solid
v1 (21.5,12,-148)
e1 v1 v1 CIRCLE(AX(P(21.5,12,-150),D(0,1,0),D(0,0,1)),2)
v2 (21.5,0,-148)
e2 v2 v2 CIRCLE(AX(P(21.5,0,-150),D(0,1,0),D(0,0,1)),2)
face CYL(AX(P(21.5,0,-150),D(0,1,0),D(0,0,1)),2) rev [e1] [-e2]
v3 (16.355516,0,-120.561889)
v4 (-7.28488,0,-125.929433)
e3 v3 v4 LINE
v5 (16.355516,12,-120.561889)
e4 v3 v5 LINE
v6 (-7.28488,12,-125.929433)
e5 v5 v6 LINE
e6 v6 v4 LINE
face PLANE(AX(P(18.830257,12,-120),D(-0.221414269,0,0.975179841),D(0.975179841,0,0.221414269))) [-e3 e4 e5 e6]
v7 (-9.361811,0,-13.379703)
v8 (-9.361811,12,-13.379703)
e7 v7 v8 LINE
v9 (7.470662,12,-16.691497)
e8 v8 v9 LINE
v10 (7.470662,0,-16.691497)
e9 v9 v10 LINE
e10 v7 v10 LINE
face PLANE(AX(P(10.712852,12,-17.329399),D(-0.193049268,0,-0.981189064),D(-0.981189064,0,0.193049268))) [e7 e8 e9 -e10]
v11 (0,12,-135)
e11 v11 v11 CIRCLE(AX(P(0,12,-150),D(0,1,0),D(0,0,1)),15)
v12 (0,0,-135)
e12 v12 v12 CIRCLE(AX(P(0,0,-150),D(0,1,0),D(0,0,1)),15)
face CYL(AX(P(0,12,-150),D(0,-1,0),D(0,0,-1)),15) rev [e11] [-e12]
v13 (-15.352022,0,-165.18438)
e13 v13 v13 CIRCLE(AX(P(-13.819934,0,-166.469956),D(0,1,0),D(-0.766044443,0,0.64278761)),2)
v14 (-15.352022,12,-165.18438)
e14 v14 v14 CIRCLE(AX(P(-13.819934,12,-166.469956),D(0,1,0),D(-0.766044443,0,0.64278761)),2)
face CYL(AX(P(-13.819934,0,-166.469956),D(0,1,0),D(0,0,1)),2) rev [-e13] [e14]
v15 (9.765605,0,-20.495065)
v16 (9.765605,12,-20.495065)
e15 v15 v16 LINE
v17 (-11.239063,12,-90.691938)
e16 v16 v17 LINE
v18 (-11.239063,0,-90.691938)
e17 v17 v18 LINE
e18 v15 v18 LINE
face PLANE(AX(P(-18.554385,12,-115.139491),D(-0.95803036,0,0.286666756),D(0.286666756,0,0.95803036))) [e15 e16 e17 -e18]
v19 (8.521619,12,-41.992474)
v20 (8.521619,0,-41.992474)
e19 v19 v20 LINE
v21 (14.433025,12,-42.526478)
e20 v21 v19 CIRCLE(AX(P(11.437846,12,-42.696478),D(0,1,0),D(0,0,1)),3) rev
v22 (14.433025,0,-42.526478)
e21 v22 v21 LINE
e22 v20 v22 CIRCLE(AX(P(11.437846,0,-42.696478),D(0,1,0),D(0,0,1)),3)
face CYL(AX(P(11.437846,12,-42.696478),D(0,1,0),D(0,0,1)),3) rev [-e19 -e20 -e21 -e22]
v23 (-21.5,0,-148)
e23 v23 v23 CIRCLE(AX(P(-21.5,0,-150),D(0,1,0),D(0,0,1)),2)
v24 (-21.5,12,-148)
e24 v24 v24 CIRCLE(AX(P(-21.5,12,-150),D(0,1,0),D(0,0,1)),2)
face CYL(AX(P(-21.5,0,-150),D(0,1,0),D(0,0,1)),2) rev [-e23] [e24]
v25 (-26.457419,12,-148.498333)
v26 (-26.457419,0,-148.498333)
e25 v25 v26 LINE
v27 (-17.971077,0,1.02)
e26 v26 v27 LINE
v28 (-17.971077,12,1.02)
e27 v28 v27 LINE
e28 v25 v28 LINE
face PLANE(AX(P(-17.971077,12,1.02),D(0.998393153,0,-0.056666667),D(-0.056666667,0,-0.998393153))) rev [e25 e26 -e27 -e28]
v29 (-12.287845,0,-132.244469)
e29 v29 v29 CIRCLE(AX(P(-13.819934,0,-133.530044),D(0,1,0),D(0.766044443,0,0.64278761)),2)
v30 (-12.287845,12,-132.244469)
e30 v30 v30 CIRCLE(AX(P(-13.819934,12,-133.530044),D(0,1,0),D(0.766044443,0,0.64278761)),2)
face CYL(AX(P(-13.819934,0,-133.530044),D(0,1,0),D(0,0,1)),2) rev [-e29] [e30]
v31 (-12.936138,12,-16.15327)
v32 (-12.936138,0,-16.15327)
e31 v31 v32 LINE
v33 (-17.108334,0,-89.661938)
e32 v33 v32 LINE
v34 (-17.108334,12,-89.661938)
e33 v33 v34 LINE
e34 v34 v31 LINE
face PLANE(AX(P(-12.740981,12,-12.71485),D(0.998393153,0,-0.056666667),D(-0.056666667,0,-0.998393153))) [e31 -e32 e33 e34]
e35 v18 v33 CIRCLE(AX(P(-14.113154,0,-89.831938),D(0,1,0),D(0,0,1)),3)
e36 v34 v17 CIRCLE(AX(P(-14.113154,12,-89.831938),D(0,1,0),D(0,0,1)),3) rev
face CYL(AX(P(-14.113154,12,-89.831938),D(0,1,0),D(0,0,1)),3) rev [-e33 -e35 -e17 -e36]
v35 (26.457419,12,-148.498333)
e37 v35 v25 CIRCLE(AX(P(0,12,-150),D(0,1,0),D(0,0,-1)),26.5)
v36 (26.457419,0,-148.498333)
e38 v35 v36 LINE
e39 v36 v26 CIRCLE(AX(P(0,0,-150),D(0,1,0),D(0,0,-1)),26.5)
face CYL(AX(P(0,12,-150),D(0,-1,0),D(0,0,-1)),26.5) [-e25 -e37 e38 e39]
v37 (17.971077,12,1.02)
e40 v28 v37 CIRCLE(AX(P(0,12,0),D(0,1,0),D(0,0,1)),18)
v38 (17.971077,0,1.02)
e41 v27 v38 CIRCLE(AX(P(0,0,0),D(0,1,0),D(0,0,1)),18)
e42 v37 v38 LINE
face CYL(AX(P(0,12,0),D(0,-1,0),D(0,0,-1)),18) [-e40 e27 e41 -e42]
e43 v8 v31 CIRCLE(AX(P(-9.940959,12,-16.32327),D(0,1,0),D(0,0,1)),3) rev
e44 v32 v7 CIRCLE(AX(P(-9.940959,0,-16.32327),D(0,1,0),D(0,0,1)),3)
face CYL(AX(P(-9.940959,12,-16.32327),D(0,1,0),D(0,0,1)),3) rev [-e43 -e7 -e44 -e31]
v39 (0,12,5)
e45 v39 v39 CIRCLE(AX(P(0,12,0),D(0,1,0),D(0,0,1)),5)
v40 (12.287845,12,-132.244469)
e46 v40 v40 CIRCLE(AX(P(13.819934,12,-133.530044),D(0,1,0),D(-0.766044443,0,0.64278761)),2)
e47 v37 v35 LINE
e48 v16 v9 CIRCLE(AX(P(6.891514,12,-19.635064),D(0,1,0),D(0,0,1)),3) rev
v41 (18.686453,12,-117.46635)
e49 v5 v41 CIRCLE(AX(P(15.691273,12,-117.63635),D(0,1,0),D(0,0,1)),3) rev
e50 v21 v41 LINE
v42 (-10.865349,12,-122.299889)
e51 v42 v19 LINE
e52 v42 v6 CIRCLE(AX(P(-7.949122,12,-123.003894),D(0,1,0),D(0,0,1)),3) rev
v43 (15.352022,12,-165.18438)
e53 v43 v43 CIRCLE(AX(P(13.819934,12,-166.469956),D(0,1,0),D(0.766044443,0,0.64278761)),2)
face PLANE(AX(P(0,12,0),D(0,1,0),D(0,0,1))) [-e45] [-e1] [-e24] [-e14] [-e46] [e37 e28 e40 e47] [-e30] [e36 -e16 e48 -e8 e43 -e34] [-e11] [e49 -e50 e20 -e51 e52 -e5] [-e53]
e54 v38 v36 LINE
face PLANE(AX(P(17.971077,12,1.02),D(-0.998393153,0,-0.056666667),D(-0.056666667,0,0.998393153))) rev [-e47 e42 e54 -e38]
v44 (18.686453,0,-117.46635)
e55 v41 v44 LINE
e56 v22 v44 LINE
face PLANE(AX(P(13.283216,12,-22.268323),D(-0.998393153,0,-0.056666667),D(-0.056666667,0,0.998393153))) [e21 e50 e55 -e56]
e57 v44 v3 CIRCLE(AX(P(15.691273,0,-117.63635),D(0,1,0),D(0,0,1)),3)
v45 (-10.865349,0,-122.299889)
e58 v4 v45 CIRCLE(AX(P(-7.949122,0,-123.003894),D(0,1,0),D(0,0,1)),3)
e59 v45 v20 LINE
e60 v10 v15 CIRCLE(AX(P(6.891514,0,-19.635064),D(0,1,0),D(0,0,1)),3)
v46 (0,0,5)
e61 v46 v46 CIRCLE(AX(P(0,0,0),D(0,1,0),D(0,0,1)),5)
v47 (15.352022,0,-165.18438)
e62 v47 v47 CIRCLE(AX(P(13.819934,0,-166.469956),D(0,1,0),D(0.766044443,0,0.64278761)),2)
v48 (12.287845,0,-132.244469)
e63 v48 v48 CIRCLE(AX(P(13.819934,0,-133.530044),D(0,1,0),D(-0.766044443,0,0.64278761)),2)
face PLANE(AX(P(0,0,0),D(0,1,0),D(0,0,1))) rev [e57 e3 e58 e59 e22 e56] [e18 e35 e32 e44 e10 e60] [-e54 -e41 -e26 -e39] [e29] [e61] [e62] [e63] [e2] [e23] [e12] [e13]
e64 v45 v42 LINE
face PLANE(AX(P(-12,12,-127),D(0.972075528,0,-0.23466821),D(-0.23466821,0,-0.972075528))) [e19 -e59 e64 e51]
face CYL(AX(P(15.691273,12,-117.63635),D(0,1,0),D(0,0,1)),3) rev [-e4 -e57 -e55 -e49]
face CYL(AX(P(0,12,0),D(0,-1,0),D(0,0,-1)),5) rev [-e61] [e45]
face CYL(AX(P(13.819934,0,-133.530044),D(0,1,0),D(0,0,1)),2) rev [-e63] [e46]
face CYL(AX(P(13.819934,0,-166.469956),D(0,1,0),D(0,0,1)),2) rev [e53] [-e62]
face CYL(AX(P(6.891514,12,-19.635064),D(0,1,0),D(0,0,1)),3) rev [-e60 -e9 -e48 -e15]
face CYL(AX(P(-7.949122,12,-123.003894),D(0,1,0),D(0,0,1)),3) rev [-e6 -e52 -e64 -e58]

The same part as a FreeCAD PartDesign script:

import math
import FreeCAD as App
import Part
import Sketcher
Q = App.Units.Quantity


def edges_at(feature, points):
    """Names of the edges that pass closest to the given points."""
    edges = feature.Shape.Edges
    near = lambda p: min(range(len(edges)), key=lambda i: edges[i].distToShape(Part.Vertex(*p))[0])
    return sorted({f"Edge{near(p) + 1}" for p in points})

doc = App.newDocument("Part")
params = doc.addObject("Spreadsheet::Sheet", "Params")
for row, (alias, value) in enumerate([
    ("sketch1_diameter", "10 mm"),
    ("sketch1_diameter2", "30 mm"),
    ("sketch1_radius", "18 mm"),
    ("sketch1_radius2", "26.5 mm"),
    ("pad1_length", "12 mm"),
    ("fillet_radius", "3 mm"),
    ("sketch2_diameter", "4 mm"),
], start=1):
    params.set(f"A{row}", alias)
    params.set(f"B{row}", "=" + value)
    params.setAlias(f"B{row}", alias)

body = doc.addObject("PartDesign::Body", "Body")

# Sketch on XZ plane
sketch1 = body.newObject("Sketcher::SketchObject", "Sketch")
sketch1.AttachmentSupport = (doc.getObject("XZ_Plane"), [""])
sketch1.MapMode = "FlatFace"
sketch1.addGeometry([
    Part.LineSegment(App.Vector(-26, -148, 0), App.Vector(-18, 1, 0)),  # 0
    Part.ArcOfCircle(Part.Circle(App.Vector(0, 0, 0), App.Vector(0, 0, 1), 18), math.radians(3), math.radians(177)),  # 1
    Part.LineSegment(App.Vector(18, 1, 0), App.Vector(26, -148, 0)),  # 2
    Part.ArcOfCircle(Part.Circle(App.Vector(0, -150, 0), App.Vector(0, 0, 1), 26), math.radians(177), math.radians(363)),  # 3
    Part.LineSegment(App.Vector(13, -22, 0), App.Vector(-12, -127, 0)),  # 4
    Part.LineSegment(App.Vector(-12, -127, 0), App.Vector(19, -120, 0)),  # 5
    Part.LineSegment(App.Vector(19, -120, 0), App.Vector(13, -22, 0)),  # 6
    Part.Circle(App.Vector(0, 0, 0), App.Vector(0, 0, 1), 5),  # 7
    Part.LineSegment(App.Vector(-13, -13, 0), App.Vector(-19, -115, 0)),  # 8
    Part.LineSegment(App.Vector(-19, -115, 0), App.Vector(11, -17, 0)),  # 9
    Part.LineSegment(App.Vector(11, -17, 0), App.Vector(-13, -13, 0)),  # 10
    Part.Circle(App.Vector(0, -150, 0), App.Vector(0, 0, 1), 15),  # 11
], False)
sketch1.addConstraint([
    Sketcher.Constraint("Tangent", 0, 2, 1, 2),
    Sketcher.Constraint("Tangent", 1, 1, 2, 1),
    Sketcher.Constraint("Tangent", 2, 2, 3, 2),
    Sketcher.Constraint("Tangent", 3, 1, 0, 1),
    Sketcher.Constraint("Coincident", 4, 2, 5, 1),
    Sketcher.Constraint("Coincident", 5, 2, 6, 1),
    Sketcher.Constraint("Coincident", 6, 2, 4, 1),
    Sketcher.Constraint("Coincident", 8, 2, 9, 1),
    Sketcher.Constraint("Coincident", 9, 2, 10, 1),
    Sketcher.Constraint("Coincident", 10, 2, 8, 1),
    Sketcher.Constraint("Coincident", 1, 3, -1, 1),
    Sketcher.Constraint("Coincident", 7, 3, -1, 1),
    Sketcher.Constraint("Coincident", 11, 3, 3, 3),
    Sketcher.Constraint("PointOnObject", 3, 3, -2),
    Sketcher.Constraint("Parallel", 2, 6),
    Sketcher.Constraint("Parallel", 0, 8),
    Sketcher.Constraint("Diameter", 7, Q("10 mm")),
    Sketcher.Constraint("Diameter", 11, Q("30 mm")),
    Sketcher.Constraint("Radius", 1, Q("18 mm")),
    Sketcher.Constraint("Radius", 3, Q("26.5 mm")),
    Sketcher.Constraint("DistanceY", 3, 3, -1, 1, Q("150 mm")),
    Sketcher.Constraint("DistanceX", 4, 2, -1, 1, Q("12 mm")),
    Sketcher.Constraint("DistanceY", 4, 2, -1, 1, Q("127 mm")),
    Sketcher.Constraint("DistanceY", 5, 2, -1, 1, Q("120 mm")),
    Sketcher.Constraint("DistanceY", 9, 2, -1, 1, Q("17.329399 mm")),
    Sketcher.Constraint("Distance", 6, Q("97.88897 mm")),
    Sketcher.Constraint("Distance", 9, Q("102.094981 mm")),
    Sketcher.Constraint("Distance", 10, Q("23.90348 mm")),
    Sketcher.Constraint("DistanceY", 8, 2, -1, 1, Q("115.139491 mm")),
    Sketcher.Constraint("DistanceX", -1, 1, 9, 2, Q("10.712852 mm")),
    Sketcher.Constraint("DistanceX", 5, 2, 2, 2, Q("7.627161 mm")),
])
sketch1.setExpression("Constraints[16]", "Params.sketch1_diameter")
sketch1.setExpression("Constraints[17]", "Params.sketch1_diameter2")
sketch1.setExpression("Constraints[18]", "Params.sketch1_radius")
sketch1.setExpression("Constraints[19]", "Params.sketch1_radius2")
pad1 = body.newObject("PartDesign::Pad", "Pad")
pad1.Profile = sketch1
pad1.setExpression("Length", "Params.pad1_length")
pad1.Reversed = True
doc.recompute()

fillet = body.newObject("PartDesign::Fillet", "Fillet")
fillet.Base = (pad1, edges_at(pad1, [
    (-12.741, 6, -12.715),
    (10.713, 6, -17.329),
    (-18.554, 6, -115.139),
    (18.83, 6, -120),
    (-12, 6, -127),
    (13.283, 6, -22.268),
]))
fillet.setExpression("Radius", "Params.fillet_radius")

# Sketch on XZ plane
sketch2 = body.newObject("Sketcher::SketchObject", "Sketch001")
sketch2.AttachmentSupport = (doc.getObject("XZ_Plane"), [""])
sketch2.MapMode = "FlatFace"
sketch2.AttachmentOffset = App.Placement(App.Vector(0, 0, -12), App.Rotation())
sketch2.addGeometry([
    Part.Circle(App.Vector(-21.5, -150, 0), App.Vector(0, 0, 1), 2),
    Part.Circle(App.Vector(21.5, -150, 0), App.Vector(0, 0, 1), 2),
], False)
sketch2.addConstraint([
    Sketcher.Constraint("Equal", 0, 1),
    Sketcher.Constraint("Symmetric", 0, 3, 1, 3, -2),
    Sketcher.Constraint("Diameter", 0, Q("4 mm")),
    Sketcher.Constraint("DistanceY", 0, 3, -1, 1, Q("150 mm")),
    Sketcher.Constraint("DistanceX", 0, 3, 1, 3, Q("43 mm")),
])
sketch2.setExpression("Constraints[2]", "Params.sketch2_diameter")
pocket1 = body.newObject("PartDesign::Pocket", "Pocket")
pocket1.Profile = sketch2
pocket1.Type = "ThroughAll"
pocket1.Reversed = True
doc.recompute()

datumline = body.newObject("PartDesign::Line", "DatumLine")
datumline.Placement = App.Placement(App.Vector(0, 0, -150), App.Rotation(App.Vector(0, 0, 1), App.Vector(0, 1, 0)))
polarpattern = body.newObject("PartDesign::PolarPattern", "PolarPattern")
polarpattern.Originals = [pocket1]
polarpattern.Axis = (datumline, [""])
polarpattern.Angle = 50
polarpattern.Occurrences = 2
body.Tip = polarpattern
doc.recompute()

datumline2 = body.newObject("PartDesign::Line", "DatumLine001")
datumline2.Placement = App.Placement(App.Vector(0, 0, -150), App.Rotation(App.Vector(0, 0, 1), App.Vector(0, -1, 0)))
polarpattern2 = body.newObject("PartDesign::PolarPattern", "PolarPattern001")
polarpattern2.Originals = [pocket1]
polarpattern2.Axis = (datumline2, [""])
polarpattern2.Angle = 50
polarpattern2.Occurrences = 2
body.Tip = polarpattern2

doc.recompute()
